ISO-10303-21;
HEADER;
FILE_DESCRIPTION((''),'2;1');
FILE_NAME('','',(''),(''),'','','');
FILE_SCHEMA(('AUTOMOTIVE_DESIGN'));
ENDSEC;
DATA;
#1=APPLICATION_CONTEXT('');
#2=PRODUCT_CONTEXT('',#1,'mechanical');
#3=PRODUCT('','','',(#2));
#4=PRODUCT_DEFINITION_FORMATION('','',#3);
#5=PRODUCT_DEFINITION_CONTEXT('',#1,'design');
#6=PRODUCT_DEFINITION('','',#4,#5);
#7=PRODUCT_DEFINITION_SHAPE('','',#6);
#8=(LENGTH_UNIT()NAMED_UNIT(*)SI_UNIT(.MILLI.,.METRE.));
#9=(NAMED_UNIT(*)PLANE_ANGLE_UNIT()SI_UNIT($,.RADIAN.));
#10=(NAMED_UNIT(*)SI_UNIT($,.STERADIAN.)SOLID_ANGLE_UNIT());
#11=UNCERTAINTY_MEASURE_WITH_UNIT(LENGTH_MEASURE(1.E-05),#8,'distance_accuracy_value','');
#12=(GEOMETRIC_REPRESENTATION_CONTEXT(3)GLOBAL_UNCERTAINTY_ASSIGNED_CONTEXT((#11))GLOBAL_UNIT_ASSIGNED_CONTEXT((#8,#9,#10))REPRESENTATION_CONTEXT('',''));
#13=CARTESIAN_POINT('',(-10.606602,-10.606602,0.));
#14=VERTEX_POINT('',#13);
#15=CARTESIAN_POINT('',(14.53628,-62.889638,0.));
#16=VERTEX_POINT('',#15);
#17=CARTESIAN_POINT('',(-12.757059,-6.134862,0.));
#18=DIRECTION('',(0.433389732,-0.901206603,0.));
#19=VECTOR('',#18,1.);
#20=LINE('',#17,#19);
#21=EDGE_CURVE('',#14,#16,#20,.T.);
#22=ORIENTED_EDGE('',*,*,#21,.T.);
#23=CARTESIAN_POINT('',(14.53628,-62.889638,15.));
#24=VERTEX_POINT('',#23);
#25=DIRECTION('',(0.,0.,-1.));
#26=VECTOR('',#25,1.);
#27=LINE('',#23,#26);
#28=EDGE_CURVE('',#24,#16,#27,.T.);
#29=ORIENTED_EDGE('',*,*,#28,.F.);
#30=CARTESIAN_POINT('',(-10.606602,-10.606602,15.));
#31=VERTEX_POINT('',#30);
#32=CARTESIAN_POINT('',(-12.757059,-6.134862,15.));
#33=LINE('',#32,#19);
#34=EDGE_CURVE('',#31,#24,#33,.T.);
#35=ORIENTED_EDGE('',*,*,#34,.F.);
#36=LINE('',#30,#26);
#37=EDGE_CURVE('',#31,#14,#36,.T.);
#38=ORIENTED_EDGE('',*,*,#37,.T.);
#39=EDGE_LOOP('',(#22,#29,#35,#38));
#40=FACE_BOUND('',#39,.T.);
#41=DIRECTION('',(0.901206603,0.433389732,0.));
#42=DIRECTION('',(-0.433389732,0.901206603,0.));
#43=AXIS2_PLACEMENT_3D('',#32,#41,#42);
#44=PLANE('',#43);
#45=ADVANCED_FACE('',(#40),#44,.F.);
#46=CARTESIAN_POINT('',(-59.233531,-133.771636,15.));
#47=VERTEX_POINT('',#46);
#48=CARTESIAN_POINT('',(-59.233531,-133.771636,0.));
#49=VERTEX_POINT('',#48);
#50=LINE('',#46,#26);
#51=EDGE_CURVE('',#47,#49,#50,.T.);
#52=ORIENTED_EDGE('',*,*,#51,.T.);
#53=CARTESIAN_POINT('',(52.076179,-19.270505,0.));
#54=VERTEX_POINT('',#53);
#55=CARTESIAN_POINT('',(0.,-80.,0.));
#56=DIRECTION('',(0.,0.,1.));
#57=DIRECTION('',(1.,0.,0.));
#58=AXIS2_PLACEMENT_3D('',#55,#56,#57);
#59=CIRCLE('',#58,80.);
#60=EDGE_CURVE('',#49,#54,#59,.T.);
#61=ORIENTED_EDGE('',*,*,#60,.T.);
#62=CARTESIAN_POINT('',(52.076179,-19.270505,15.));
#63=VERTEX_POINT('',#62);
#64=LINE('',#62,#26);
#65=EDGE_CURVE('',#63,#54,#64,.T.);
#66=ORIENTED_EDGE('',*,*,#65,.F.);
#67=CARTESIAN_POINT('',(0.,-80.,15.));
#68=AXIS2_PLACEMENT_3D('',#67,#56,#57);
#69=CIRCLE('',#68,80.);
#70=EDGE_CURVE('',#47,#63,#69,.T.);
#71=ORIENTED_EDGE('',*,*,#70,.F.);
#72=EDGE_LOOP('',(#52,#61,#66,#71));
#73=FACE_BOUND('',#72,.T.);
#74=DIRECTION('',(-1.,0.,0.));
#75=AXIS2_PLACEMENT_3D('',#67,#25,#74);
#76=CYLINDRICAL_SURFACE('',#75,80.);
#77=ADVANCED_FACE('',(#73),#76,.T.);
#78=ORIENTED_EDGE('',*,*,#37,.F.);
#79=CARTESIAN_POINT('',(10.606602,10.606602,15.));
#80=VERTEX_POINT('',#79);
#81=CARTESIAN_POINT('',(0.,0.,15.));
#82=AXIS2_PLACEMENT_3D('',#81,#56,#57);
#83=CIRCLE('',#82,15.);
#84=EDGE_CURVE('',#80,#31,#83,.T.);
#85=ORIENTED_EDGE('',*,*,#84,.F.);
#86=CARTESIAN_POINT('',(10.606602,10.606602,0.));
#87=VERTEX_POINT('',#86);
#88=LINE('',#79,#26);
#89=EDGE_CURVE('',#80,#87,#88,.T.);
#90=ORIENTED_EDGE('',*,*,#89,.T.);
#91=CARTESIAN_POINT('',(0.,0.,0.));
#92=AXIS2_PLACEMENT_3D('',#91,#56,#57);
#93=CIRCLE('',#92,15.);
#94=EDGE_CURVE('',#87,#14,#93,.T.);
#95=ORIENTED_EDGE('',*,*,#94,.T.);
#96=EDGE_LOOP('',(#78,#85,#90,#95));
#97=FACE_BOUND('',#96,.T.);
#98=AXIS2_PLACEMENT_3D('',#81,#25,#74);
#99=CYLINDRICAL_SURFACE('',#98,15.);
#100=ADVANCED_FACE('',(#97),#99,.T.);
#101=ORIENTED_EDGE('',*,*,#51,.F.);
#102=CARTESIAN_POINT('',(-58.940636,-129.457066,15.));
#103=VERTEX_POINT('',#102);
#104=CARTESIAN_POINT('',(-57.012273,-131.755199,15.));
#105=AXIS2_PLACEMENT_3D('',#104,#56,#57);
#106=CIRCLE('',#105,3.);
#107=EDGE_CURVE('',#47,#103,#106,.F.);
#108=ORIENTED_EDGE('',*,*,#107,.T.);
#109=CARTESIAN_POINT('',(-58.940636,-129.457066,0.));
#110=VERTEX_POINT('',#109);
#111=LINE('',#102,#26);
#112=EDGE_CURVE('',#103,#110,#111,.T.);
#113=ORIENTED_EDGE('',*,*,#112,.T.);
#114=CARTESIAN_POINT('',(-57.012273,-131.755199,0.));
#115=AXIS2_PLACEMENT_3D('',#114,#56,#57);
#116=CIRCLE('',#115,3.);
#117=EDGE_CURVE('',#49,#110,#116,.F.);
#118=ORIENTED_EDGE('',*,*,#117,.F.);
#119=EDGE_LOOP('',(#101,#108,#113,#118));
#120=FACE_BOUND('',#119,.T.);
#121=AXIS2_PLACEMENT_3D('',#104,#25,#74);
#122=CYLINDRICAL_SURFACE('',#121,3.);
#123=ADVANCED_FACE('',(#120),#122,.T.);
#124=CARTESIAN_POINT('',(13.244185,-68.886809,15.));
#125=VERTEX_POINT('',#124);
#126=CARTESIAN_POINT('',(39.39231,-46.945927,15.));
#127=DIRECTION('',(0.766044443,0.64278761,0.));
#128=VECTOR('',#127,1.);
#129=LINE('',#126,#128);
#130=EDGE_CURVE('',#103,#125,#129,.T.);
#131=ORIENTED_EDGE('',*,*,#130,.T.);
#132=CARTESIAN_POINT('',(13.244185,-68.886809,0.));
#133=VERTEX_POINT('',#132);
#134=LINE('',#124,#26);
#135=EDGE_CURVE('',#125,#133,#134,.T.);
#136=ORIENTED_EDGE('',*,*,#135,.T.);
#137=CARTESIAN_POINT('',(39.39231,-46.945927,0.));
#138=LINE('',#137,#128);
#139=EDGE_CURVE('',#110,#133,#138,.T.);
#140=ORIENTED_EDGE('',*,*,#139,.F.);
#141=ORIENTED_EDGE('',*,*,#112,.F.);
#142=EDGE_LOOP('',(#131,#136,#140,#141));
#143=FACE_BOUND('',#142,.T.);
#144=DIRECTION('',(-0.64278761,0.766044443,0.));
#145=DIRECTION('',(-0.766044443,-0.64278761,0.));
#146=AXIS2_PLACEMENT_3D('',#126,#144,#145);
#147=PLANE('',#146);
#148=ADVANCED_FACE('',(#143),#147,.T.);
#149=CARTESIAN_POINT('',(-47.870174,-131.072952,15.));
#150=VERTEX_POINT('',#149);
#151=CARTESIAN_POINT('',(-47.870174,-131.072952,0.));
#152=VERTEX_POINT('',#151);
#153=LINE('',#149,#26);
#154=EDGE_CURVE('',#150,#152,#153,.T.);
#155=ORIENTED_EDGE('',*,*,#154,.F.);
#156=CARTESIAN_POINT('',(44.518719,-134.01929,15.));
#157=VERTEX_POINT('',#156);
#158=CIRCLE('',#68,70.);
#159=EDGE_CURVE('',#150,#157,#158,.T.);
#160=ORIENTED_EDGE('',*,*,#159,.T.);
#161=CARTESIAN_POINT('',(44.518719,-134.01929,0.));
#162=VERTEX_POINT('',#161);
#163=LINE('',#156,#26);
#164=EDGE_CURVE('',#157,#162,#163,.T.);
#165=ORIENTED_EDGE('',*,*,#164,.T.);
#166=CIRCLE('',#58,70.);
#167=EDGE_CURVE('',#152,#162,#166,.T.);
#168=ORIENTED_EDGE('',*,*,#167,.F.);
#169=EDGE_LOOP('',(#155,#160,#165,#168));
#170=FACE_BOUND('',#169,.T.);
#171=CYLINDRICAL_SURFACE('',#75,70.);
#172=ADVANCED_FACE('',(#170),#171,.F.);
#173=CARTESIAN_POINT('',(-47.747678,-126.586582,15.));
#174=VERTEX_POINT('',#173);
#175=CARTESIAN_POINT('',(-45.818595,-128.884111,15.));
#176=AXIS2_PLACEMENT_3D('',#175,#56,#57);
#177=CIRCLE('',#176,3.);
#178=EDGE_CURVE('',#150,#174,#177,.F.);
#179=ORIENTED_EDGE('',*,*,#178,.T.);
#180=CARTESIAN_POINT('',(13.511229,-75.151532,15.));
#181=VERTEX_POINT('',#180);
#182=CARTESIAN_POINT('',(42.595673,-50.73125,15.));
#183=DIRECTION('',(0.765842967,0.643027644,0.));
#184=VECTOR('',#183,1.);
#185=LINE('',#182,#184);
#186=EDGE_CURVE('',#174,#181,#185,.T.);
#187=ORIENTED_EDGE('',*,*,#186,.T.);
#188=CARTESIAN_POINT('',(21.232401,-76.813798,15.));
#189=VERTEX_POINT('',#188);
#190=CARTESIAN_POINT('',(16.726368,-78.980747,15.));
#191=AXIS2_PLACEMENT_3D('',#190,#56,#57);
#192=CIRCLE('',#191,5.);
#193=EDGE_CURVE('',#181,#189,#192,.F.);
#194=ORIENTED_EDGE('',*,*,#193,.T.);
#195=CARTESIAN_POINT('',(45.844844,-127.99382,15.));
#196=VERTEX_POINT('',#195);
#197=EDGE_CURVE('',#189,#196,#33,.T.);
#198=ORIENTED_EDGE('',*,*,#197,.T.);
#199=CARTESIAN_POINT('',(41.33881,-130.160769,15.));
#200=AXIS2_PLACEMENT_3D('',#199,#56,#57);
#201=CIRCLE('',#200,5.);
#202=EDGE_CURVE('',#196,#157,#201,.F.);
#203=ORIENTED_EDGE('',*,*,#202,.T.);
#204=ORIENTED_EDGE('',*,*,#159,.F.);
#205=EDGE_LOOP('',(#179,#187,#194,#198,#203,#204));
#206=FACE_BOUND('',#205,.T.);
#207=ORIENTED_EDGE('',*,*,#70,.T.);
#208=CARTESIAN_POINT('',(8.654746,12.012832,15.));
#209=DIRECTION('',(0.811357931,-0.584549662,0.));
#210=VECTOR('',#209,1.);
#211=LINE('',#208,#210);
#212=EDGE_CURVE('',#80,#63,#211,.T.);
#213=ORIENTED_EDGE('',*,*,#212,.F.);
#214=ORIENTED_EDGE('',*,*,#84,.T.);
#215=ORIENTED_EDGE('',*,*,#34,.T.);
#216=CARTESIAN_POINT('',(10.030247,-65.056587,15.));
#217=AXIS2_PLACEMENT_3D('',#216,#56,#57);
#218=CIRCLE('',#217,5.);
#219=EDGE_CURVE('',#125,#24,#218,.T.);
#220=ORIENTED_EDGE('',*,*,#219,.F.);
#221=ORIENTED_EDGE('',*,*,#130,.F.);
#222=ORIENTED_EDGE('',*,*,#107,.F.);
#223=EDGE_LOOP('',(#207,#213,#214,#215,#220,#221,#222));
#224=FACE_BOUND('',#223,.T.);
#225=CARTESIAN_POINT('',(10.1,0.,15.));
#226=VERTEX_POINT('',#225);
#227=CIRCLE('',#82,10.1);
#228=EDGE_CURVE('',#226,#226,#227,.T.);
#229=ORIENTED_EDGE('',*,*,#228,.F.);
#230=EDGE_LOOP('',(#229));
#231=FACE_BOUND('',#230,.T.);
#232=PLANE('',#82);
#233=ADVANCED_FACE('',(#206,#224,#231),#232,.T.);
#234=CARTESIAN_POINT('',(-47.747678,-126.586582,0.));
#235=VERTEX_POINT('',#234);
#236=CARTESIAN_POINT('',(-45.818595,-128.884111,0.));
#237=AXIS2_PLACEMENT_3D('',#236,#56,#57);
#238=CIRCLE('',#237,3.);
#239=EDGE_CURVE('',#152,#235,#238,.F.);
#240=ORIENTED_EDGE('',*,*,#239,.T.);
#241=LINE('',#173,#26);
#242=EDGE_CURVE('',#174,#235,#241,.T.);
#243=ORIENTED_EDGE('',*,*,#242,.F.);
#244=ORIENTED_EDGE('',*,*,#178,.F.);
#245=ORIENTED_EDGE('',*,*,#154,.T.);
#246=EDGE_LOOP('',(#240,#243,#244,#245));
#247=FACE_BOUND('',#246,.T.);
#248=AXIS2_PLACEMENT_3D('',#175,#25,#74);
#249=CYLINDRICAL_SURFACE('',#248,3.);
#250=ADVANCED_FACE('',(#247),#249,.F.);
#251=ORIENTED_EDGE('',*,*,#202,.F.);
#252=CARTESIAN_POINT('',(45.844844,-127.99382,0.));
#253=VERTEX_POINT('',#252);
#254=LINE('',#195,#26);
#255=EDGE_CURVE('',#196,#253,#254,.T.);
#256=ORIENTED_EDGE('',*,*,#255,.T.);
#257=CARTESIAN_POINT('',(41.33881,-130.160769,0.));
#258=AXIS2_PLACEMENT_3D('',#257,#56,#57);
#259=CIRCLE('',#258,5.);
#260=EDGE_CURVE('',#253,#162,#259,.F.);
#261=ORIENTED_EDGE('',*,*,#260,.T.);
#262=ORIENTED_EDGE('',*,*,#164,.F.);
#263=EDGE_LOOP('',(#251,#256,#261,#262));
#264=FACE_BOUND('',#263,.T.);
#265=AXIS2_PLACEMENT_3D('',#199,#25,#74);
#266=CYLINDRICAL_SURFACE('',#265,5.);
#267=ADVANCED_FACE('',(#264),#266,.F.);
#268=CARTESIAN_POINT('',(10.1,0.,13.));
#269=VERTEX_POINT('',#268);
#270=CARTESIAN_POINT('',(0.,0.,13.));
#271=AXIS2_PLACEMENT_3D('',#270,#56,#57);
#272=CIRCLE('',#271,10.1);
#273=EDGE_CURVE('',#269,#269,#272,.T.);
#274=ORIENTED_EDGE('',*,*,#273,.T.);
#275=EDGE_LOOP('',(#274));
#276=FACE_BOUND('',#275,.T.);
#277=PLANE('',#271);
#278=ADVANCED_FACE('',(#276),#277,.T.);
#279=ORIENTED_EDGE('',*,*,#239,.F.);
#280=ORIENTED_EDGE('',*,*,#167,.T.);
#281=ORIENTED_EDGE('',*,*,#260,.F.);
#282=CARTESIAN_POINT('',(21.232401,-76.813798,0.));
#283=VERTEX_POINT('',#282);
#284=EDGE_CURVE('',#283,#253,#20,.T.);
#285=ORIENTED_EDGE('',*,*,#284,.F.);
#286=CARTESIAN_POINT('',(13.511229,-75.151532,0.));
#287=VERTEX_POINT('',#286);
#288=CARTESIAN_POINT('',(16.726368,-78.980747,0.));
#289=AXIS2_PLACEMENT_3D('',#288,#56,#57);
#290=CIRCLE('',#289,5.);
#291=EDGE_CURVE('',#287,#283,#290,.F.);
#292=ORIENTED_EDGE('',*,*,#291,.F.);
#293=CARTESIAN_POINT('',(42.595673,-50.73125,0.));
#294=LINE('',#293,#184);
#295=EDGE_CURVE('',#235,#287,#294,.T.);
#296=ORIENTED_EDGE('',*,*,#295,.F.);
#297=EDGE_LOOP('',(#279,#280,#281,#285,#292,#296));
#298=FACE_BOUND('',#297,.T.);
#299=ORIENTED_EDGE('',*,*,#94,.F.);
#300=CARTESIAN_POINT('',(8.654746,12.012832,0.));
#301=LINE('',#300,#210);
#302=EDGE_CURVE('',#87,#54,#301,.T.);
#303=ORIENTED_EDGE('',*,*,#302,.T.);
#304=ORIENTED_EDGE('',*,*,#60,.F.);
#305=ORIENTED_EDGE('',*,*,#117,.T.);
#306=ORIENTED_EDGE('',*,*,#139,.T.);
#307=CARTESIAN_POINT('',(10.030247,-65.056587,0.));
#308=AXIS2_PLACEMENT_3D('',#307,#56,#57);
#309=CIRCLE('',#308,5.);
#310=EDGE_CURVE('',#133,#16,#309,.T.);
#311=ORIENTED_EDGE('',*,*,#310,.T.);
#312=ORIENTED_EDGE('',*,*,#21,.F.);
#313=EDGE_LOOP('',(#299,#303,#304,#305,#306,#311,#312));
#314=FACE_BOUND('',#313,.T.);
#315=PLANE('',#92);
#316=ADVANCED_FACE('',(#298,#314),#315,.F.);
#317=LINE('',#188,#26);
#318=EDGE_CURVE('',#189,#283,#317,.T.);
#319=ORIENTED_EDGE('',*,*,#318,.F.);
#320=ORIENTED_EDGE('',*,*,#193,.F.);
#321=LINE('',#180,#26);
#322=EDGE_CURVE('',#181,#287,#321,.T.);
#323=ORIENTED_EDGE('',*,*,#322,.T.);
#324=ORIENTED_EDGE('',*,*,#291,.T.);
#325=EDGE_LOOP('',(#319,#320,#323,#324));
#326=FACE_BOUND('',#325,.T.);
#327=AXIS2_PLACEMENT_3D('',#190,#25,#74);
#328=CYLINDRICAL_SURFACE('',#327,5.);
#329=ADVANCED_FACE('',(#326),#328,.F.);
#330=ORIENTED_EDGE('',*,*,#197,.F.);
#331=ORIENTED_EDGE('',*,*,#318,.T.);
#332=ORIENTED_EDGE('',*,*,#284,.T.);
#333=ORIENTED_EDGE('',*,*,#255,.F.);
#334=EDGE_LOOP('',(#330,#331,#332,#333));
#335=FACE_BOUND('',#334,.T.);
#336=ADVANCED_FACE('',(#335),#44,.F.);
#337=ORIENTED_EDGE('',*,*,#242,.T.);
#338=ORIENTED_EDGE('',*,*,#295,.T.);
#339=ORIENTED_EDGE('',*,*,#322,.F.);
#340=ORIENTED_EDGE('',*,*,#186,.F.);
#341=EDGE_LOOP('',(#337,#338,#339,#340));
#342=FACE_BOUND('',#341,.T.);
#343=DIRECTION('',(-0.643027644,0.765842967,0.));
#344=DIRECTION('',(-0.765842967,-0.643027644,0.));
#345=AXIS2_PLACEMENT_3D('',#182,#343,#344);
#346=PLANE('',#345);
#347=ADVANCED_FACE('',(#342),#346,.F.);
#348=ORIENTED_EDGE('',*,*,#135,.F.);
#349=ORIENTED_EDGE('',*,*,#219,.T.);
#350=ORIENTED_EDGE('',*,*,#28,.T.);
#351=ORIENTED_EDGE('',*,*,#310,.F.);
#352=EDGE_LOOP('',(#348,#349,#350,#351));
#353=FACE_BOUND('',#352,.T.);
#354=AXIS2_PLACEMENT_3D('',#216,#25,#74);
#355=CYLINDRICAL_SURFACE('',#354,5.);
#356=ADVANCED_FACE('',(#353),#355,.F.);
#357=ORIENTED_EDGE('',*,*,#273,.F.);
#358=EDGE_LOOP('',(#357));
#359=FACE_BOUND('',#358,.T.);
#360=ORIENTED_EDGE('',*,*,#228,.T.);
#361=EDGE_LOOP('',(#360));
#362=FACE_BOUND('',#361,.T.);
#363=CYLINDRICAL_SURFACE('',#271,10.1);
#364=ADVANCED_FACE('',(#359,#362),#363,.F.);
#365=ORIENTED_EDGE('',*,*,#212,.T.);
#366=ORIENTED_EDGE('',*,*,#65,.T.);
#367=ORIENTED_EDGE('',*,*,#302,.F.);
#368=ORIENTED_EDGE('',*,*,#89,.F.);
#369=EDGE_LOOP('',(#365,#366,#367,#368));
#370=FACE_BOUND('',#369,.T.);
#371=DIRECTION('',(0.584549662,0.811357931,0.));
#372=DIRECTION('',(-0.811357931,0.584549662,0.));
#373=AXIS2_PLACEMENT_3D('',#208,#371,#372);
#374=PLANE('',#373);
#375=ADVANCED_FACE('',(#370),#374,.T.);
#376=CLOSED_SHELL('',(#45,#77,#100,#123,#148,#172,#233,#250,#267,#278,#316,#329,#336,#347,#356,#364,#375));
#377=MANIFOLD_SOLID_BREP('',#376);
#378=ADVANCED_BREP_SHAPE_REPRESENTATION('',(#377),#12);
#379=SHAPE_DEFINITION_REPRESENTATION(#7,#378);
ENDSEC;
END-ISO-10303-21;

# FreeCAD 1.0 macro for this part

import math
import FreeCAD as App
import Part
import Sketcher
Q = App.Units.Quantity

doc = App.newDocument("Part")
body = doc.addObject("PartDesign::Body", "Body")

sketch1 = body.newObject("Sketcher::SketchObject", "Sketch")
sketch1.AttachmentSupport = (doc.getObject("XY_Plane"), [""])
sketch1.MapMode = "FlatFace"
sketch1.addGeometry([
    Part.LineSegment(App.Vector(-53.6, -125, 0), App.Vector(-58.9, -129.5, 0)),
    Part.ArcOfCircle(Part.Circle(App.Vector(-57, -131.8, 0), App.Vector(0, 0, 1), 3), math.radians(130), math.radians(222)),
    Part.ArcOfCircle(Part.Circle(App.Vector(0, -80, 0), App.Vector(0, 0, 1), 80), math.radians(-138), math.radians(49)),
    Part.LineSegment(App.Vector(52.1, -19.3, 0), App.Vector(10.6, 10.6, 0)),
    Part.ArcOfCircle(Part.Circle(App.Vector(0, 0, 0), App.Vector(0, 0, 1), 15), math.radians(45), math.radians(225)),
    Part.LineSegment(App.Vector(-10.6, -10.6, 0), App.Vector(14.5, -62.9, 0)),
    Part.ArcOfCircle(Part.Circle(App.Vector(10, -65.1, 0), App.Vector(0, 0, 1), 5), math.radians(-50), math.radians(26)),
    Part.LineSegment(App.Vector(13.2, -68.9, 0), App.Vector(-53.6, -125, 0)),
    Part.ArcOfCircle(Part.Circle(App.Vector(16.7, -79, 0), App.Vector(0, 0, 1), 5), math.radians(26), math.radians(130)),
    Part.LineSegment(App.Vector(21.2, -76.8, 0), App.Vector(45.8, -128, 0)),
    Part.ArcOfCircle(Part.Circle(App.Vector(41.3, -130.2, 0), App.Vector(0, 0, 1), 5), math.radians(-51), math.radians(26)),
    Part.ArcOfCircle(Part.Circle(App.Vector(0, -80, 0), App.Vector(0, 0, 1), 70), math.radians(-133), math.radians(-51)),
    Part.ArcOfCircle(Part.Circle(App.Vector(-45.8, -128.9, 0), App.Vector(0, 0, 1), 3), math.radians(130), math.radians(227)),
    Part.LineSegment(App.Vector(-47.7, -126.6, 0), App.Vector(13.5, -75.2, 0)),
], False)
sketch1.addConstraint([
    Sketcher.Constraint("Tangent", 0, 2, 1, 1),
    Sketcher.Constraint("Tangent", 1, 2, 2, 1),
    Sketcher.Constraint("Coincident", 2, 2, 3, 1),
    Sketcher.Constraint("Coincident", 3, 2, 4, 1),
    Sketcher.Constraint("Coincident", 4, 2, 5, 1),
    Sketcher.Constraint("Tangent", 5, 2, 6, 2),
    Sketcher.Constraint("Tangent", 6, 1, 7, 1),
    Sketcher.Constraint("Coincident", 7, 2, 0, 1),
    Sketcher.Constraint("Tangent", 8, 1, 9, 1),
    Sketcher.Constraint("Tangent", 9, 2, 10, 2),
    Sketcher.Constraint("Tangent", 10, 1, 11, 2),
    Sketcher.Constraint("Tangent", 11, 1, 12, 2),
    Sketcher.Constraint("Tangent", 12, 1, 13, 1),
    Sketcher.Constraint("Tangent", 13, 2, 8, 2),
    Sketcher.Constraint("Coincident", 4, 3, -1, 1),
    Sketcher.Constraint("Coincident", 11, 3, 2, 3),
    Sketcher.Constraint("Equal", 6, 8),
    Sketcher.Constraint("Equal", 8, 10),
    Sketcher.Constraint("Equal", 1, 12),
    Sketcher.Constraint("PointOnObject", 2, 3, -2),
    Sketcher.Constraint("Parallel", 0, 7),
    Sketcher.Constraint("Parallel", 5, 9),
    Sketcher.Constraint("Radius", 1, Q("3 mm")),
    Sketcher.Constraint("Radius", 2, Q("80 mm")),
    Sketcher.Constraint("Radius", 4, Q("15 mm")),
    Sketcher.Constraint("Radius", 6, Q("5 mm")),
    Sketcher.Constraint("Radius", 11, Q("70 mm")),
    Sketcher.Constraint("Angle", 0, Q("-140 deg")),
    Sketcher.Constraint("DistanceY", 2, 3, -1, 1, Q("80 mm")),
    Sketcher.Constraint("DistanceY", 1, 3, -1, 1, Q("131.755199 mm")),
    Sketcher.Constraint("DistanceX", -1, 1, 3, 2, Q("10.606602 mm")),
    Sketcher.Constraint("DistanceX", 4, 2, -1, 1, Q("10.606602 mm")),
    Sketcher.Constraint("DistanceX", -1, 1, 8, 1, Q("21.232401 mm")),
    Sketcher.Constraint("DistanceY", 8, 1, -1, 1, Q("76.813798 mm")),
    Sketcher.Constraint("DistanceX", 5, 2, 2, 2, Q("37.539899 mm")),
    Sketcher.Constraint("DistanceX", 1, 3, 11, 1, Q("9.142099 mm")),
    Sketcher.Constraint("DistanceX", -1, 1, 10, 3, Q("41.33881 mm")),
    Sketcher.Constraint("DistanceX", 7, 2, -1, 1, Q("53.623111 mm")),
])
pad1 = body.newObject("PartDesign::Pad", "Pad")
pad1.Profile = sketch1
pad1.Length = 15

sketch2 = body.newObject("Sketcher::SketchObject", "Sketch001")
sketch2.AttachmentSupport = (doc.getObject("XY_Plane"), [""])
sketch2.MapMode = "FlatFace"
sketch2.AttachmentOffset = App.Placement(App.Vector(0, 0, 15), App.Rotation())
sketch2.addGeometry(Part.Circle(App.Vector(0, 0, 0), App.Vector(0, 0, 1), 10), False)
sketch2.addConstraint([
    Sketcher.Constraint("Coincident", 0, 3, -1, 1),
    Sketcher.Constraint("Diameter", 0, Q("20.2 mm")),
])
pocket1 = body.newObject("PartDesign::Pocket", "Pocket")
pocket1.Profile = sketch2
pocket1.Length = 2

doc.recompute()
